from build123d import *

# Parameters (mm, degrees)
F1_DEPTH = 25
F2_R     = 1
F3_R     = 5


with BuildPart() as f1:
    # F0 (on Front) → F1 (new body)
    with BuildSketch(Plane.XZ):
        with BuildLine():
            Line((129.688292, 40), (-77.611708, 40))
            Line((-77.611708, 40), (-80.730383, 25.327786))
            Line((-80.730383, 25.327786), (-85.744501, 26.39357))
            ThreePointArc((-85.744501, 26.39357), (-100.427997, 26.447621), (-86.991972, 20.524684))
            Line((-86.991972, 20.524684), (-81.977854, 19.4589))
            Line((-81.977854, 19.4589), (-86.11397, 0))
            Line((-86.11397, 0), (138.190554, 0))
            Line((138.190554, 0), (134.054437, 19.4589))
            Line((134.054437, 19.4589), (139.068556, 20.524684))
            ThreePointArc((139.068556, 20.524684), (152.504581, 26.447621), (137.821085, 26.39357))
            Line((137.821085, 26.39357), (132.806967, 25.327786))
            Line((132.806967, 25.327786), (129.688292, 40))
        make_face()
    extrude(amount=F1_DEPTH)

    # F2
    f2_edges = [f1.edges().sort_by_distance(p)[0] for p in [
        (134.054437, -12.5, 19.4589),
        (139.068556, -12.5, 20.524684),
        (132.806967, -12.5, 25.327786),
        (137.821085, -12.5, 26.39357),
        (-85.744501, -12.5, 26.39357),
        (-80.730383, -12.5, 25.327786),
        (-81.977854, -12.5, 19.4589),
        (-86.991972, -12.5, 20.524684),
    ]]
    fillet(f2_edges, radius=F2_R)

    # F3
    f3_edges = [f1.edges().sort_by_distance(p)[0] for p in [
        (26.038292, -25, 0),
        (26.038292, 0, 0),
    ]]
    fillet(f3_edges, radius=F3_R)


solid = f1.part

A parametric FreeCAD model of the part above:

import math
import FreeCAD as App
import Part
import Sketcher

V = App.Vector
Q = App.Units.Quantity


def edges_at(feature, points):
    """Names of the edges that pass closest to the given points."""
    edges = feature.Shape.Edges
    near = lambda p: min(range(len(edges)), key=lambda i: edges[i].distToShape(Part.Vertex(*p))[0])
    return sorted({f"Edge{near(p) + 1}" for p in points})

doc = App.newDocument("Part")
params = doc.addObject("Spreadsheet::Sheet", "Params")
for row, (alias, value) in enumerate([
    ("sketch1_radius", "7.5 mm"),
    ("sketch1_length", "15 mm"),
    ("sketch1_width", "207.3 mm"),
    ("pad1_length", "25 mm"),
    ("fillet_radius", "1 mm"),
    ("fillet2_radius", "5 mm"),
], start=1):
    params.set(f"A{row}", alias)
    params.set(f"B{row}", "=" + value)
    params.setAlias(f"B{row}", alias)

body = doc.addObject("PartDesign::Body", "Body")

sketch1 = doc.addObject("Sketcher::SketchObject", "Sketch")
body.addObject(sketch1)
sketch1.AttachmentSupport = (doc.XZ_Plane, [""])
sketch1.MapMode = "FlatFace"
sketch1.addGeometry([
    Part.LineSegment(V(130, 40, 0), V(-78, 40, 0)),
    Part.LineSegment(V(-78, 40, 0), V(-81, 25, 0)),
    Part.LineSegment(V(-81, 25, 0), V(-86, 26, 0)),
    Part.ArcOfCircle(Part.Circle(V(-93, 25, 0), V(0, 0, 1), 8), math.radians(12), math.radians(324)),
    Part.LineSegment(V(-87, 21, 0), V(-82, 19, 0)),
    Part.LineSegment(V(-82, 19, 0), V(-86, 0, 0)),
    Part.LineSegment(V(-86, 0, 0), V(138, 0, 0)),
    Part.LineSegment(V(138, 0, 0), V(134, 19, 0)),
    Part.LineSegment(V(134, 19, 0), V(139, 21, 0)),
    Part.ArcOfCircle(Part.Circle(V(145, 25, 0), V(0, 0, 1), 8), math.radians(-144), math.radians(168)),
    Part.LineSegment(V(138, 26, 0), V(133, 25, 0)),
    Part.LineSegment(V(133, 25, 0), V(130, 40, 0)),
], False)
sketch1.addConstraint([
    Sketcher.Constraint("Coincident", 0, 2, 1, 1),
    Sketcher.Constraint("Coincident", 1, 2, 2, 1),
    Sketcher.Constraint("Coincident", 2, 2, 3, 1),
    Sketcher.Constraint("Coincident", 3, 2, 4, 1),
    Sketcher.Constraint("Coincident", 4, 2, 5, 1),
    Sketcher.Constraint("Coincident", 5, 2, 6, 1),
    Sketcher.Constraint("Coincident", 6, 2, 7, 1),
    Sketcher.Constraint("Coincident", 7, 2, 8, 1),
    Sketcher.Constraint("Coincident", 8, 2, 9, 1),
    Sketcher.Constraint("Coincident", 9, 2, 10, 1),
    Sketcher.Constraint("Coincident", 10, 2, 11, 1),
    Sketcher.Constraint("Coincident", 11, 2, 0, 1),
    Sketcher.Constraint("Horizontal", 0),
    Sketcher.Constraint("Horizontal", 6),
    Sketcher.Constraint("Equal", 3, 9),
    Sketcher.Constraint("PointOnObject", 5, 2, -1),
    Sketcher.Constraint("Perpendicular", 1, 2),
    Sketcher.Constraint("Parallel", 2, 4),
    Sketcher.Constraint("Perpendicular", 4, 5),
    Sketcher.Constraint("Perpendicular", 7, 8),
    Sketcher.Constraint("Parallel", 8, 10),
    Sketcher.Constraint("Perpendicular", 10, 11),
    Sketcher.Constraint("Horizontal", 3, 3, 9, 3),
    Sketcher.Constraint("Horizontal", 4, 2, 7, 2),
    Sketcher.Constraint("Horizontal", 3, 2, 8, 2),
    Sketcher.Constraint("Horizontal", 2, 2, 9, 2),
    Sketcher.Constraint("Horizontal", 1, 2, 10, 2),
    Sketcher.Constraint("Equal", 2, 4),
    Sketcher.Constraint("Equal", 5, 7),
    Sketcher.Constraint("Radius", 3, Q("7.5 mm")),
    Sketcher.Constraint("Angle", 1, Q("-101.999999 deg")),
    Sketcher.Constraint("Distance", 1, Q("15 mm")),
    Sketcher.Constraint("DistanceX", 0, 2, 0, 1, Q("207.3 mm")),
    Sketcher.Constraint("DistanceY", -1, 1, 0, 2, Q("40 mm")),
    Sketcher.Constraint("DistanceX", 2, 2, -1, 1, Q("85.744501 mm")),
    Sketcher.Constraint("DistanceY", -1, 1, 4, 2, Q("19.4589 mm")),
    Sketcher.Constraint("DistanceY", 3, 3, 1, 2, Q("0.439502 mm")),
    Sketcher.Constraint("DistanceY", 3, 2, 3, 3, Q("4.3636 mm")),
])
sketch1.setExpression("Constraints[29]", "Params.sketch1_radius")
sketch1.setExpression("Constraints[31]", "Params.sketch1_length")
sketch1.setExpression("Constraints[32]", "Params.sketch1_width")
pad1 = doc.addObject("PartDesign::Pad", "Pad")
body.addObject(pad1)
pad1.Profile = sketch1
pad1.setExpression("Length", "Params.pad1_length")
doc.recompute()

fillet = doc.addObject("PartDesign::Fillet", "Fillet")
body.addObject(fillet)
fillet.Base = (pad1, edges_at(pad1, [
    (134.054, -12.5, 19.459),
    (139.069, -12.5, 20.525),
    (132.807, -12.5, 25.328),
    (137.821, -12.5, 26.394),
    (-85.745, -12.5, 26.394),
    (-80.73, -12.5, 25.328),
    (-81.978, -12.5, 19.459),
    (-86.992, -12.5, 20.525),
]))
fillet.setExpression("Radius", "Params.fillet_radius")
doc.recompute()

fillet2 = doc.addObject("PartDesign::Fillet", "Fillet001")
body.addObject(fillet2)
fillet2.Base = (fillet, edges_at(fillet, [(26.038, -25, 0), (26.038, 0, 0)]))
fillet2.setExpression("Radius", "Params.fillet2_radius")

doc.recompute()
